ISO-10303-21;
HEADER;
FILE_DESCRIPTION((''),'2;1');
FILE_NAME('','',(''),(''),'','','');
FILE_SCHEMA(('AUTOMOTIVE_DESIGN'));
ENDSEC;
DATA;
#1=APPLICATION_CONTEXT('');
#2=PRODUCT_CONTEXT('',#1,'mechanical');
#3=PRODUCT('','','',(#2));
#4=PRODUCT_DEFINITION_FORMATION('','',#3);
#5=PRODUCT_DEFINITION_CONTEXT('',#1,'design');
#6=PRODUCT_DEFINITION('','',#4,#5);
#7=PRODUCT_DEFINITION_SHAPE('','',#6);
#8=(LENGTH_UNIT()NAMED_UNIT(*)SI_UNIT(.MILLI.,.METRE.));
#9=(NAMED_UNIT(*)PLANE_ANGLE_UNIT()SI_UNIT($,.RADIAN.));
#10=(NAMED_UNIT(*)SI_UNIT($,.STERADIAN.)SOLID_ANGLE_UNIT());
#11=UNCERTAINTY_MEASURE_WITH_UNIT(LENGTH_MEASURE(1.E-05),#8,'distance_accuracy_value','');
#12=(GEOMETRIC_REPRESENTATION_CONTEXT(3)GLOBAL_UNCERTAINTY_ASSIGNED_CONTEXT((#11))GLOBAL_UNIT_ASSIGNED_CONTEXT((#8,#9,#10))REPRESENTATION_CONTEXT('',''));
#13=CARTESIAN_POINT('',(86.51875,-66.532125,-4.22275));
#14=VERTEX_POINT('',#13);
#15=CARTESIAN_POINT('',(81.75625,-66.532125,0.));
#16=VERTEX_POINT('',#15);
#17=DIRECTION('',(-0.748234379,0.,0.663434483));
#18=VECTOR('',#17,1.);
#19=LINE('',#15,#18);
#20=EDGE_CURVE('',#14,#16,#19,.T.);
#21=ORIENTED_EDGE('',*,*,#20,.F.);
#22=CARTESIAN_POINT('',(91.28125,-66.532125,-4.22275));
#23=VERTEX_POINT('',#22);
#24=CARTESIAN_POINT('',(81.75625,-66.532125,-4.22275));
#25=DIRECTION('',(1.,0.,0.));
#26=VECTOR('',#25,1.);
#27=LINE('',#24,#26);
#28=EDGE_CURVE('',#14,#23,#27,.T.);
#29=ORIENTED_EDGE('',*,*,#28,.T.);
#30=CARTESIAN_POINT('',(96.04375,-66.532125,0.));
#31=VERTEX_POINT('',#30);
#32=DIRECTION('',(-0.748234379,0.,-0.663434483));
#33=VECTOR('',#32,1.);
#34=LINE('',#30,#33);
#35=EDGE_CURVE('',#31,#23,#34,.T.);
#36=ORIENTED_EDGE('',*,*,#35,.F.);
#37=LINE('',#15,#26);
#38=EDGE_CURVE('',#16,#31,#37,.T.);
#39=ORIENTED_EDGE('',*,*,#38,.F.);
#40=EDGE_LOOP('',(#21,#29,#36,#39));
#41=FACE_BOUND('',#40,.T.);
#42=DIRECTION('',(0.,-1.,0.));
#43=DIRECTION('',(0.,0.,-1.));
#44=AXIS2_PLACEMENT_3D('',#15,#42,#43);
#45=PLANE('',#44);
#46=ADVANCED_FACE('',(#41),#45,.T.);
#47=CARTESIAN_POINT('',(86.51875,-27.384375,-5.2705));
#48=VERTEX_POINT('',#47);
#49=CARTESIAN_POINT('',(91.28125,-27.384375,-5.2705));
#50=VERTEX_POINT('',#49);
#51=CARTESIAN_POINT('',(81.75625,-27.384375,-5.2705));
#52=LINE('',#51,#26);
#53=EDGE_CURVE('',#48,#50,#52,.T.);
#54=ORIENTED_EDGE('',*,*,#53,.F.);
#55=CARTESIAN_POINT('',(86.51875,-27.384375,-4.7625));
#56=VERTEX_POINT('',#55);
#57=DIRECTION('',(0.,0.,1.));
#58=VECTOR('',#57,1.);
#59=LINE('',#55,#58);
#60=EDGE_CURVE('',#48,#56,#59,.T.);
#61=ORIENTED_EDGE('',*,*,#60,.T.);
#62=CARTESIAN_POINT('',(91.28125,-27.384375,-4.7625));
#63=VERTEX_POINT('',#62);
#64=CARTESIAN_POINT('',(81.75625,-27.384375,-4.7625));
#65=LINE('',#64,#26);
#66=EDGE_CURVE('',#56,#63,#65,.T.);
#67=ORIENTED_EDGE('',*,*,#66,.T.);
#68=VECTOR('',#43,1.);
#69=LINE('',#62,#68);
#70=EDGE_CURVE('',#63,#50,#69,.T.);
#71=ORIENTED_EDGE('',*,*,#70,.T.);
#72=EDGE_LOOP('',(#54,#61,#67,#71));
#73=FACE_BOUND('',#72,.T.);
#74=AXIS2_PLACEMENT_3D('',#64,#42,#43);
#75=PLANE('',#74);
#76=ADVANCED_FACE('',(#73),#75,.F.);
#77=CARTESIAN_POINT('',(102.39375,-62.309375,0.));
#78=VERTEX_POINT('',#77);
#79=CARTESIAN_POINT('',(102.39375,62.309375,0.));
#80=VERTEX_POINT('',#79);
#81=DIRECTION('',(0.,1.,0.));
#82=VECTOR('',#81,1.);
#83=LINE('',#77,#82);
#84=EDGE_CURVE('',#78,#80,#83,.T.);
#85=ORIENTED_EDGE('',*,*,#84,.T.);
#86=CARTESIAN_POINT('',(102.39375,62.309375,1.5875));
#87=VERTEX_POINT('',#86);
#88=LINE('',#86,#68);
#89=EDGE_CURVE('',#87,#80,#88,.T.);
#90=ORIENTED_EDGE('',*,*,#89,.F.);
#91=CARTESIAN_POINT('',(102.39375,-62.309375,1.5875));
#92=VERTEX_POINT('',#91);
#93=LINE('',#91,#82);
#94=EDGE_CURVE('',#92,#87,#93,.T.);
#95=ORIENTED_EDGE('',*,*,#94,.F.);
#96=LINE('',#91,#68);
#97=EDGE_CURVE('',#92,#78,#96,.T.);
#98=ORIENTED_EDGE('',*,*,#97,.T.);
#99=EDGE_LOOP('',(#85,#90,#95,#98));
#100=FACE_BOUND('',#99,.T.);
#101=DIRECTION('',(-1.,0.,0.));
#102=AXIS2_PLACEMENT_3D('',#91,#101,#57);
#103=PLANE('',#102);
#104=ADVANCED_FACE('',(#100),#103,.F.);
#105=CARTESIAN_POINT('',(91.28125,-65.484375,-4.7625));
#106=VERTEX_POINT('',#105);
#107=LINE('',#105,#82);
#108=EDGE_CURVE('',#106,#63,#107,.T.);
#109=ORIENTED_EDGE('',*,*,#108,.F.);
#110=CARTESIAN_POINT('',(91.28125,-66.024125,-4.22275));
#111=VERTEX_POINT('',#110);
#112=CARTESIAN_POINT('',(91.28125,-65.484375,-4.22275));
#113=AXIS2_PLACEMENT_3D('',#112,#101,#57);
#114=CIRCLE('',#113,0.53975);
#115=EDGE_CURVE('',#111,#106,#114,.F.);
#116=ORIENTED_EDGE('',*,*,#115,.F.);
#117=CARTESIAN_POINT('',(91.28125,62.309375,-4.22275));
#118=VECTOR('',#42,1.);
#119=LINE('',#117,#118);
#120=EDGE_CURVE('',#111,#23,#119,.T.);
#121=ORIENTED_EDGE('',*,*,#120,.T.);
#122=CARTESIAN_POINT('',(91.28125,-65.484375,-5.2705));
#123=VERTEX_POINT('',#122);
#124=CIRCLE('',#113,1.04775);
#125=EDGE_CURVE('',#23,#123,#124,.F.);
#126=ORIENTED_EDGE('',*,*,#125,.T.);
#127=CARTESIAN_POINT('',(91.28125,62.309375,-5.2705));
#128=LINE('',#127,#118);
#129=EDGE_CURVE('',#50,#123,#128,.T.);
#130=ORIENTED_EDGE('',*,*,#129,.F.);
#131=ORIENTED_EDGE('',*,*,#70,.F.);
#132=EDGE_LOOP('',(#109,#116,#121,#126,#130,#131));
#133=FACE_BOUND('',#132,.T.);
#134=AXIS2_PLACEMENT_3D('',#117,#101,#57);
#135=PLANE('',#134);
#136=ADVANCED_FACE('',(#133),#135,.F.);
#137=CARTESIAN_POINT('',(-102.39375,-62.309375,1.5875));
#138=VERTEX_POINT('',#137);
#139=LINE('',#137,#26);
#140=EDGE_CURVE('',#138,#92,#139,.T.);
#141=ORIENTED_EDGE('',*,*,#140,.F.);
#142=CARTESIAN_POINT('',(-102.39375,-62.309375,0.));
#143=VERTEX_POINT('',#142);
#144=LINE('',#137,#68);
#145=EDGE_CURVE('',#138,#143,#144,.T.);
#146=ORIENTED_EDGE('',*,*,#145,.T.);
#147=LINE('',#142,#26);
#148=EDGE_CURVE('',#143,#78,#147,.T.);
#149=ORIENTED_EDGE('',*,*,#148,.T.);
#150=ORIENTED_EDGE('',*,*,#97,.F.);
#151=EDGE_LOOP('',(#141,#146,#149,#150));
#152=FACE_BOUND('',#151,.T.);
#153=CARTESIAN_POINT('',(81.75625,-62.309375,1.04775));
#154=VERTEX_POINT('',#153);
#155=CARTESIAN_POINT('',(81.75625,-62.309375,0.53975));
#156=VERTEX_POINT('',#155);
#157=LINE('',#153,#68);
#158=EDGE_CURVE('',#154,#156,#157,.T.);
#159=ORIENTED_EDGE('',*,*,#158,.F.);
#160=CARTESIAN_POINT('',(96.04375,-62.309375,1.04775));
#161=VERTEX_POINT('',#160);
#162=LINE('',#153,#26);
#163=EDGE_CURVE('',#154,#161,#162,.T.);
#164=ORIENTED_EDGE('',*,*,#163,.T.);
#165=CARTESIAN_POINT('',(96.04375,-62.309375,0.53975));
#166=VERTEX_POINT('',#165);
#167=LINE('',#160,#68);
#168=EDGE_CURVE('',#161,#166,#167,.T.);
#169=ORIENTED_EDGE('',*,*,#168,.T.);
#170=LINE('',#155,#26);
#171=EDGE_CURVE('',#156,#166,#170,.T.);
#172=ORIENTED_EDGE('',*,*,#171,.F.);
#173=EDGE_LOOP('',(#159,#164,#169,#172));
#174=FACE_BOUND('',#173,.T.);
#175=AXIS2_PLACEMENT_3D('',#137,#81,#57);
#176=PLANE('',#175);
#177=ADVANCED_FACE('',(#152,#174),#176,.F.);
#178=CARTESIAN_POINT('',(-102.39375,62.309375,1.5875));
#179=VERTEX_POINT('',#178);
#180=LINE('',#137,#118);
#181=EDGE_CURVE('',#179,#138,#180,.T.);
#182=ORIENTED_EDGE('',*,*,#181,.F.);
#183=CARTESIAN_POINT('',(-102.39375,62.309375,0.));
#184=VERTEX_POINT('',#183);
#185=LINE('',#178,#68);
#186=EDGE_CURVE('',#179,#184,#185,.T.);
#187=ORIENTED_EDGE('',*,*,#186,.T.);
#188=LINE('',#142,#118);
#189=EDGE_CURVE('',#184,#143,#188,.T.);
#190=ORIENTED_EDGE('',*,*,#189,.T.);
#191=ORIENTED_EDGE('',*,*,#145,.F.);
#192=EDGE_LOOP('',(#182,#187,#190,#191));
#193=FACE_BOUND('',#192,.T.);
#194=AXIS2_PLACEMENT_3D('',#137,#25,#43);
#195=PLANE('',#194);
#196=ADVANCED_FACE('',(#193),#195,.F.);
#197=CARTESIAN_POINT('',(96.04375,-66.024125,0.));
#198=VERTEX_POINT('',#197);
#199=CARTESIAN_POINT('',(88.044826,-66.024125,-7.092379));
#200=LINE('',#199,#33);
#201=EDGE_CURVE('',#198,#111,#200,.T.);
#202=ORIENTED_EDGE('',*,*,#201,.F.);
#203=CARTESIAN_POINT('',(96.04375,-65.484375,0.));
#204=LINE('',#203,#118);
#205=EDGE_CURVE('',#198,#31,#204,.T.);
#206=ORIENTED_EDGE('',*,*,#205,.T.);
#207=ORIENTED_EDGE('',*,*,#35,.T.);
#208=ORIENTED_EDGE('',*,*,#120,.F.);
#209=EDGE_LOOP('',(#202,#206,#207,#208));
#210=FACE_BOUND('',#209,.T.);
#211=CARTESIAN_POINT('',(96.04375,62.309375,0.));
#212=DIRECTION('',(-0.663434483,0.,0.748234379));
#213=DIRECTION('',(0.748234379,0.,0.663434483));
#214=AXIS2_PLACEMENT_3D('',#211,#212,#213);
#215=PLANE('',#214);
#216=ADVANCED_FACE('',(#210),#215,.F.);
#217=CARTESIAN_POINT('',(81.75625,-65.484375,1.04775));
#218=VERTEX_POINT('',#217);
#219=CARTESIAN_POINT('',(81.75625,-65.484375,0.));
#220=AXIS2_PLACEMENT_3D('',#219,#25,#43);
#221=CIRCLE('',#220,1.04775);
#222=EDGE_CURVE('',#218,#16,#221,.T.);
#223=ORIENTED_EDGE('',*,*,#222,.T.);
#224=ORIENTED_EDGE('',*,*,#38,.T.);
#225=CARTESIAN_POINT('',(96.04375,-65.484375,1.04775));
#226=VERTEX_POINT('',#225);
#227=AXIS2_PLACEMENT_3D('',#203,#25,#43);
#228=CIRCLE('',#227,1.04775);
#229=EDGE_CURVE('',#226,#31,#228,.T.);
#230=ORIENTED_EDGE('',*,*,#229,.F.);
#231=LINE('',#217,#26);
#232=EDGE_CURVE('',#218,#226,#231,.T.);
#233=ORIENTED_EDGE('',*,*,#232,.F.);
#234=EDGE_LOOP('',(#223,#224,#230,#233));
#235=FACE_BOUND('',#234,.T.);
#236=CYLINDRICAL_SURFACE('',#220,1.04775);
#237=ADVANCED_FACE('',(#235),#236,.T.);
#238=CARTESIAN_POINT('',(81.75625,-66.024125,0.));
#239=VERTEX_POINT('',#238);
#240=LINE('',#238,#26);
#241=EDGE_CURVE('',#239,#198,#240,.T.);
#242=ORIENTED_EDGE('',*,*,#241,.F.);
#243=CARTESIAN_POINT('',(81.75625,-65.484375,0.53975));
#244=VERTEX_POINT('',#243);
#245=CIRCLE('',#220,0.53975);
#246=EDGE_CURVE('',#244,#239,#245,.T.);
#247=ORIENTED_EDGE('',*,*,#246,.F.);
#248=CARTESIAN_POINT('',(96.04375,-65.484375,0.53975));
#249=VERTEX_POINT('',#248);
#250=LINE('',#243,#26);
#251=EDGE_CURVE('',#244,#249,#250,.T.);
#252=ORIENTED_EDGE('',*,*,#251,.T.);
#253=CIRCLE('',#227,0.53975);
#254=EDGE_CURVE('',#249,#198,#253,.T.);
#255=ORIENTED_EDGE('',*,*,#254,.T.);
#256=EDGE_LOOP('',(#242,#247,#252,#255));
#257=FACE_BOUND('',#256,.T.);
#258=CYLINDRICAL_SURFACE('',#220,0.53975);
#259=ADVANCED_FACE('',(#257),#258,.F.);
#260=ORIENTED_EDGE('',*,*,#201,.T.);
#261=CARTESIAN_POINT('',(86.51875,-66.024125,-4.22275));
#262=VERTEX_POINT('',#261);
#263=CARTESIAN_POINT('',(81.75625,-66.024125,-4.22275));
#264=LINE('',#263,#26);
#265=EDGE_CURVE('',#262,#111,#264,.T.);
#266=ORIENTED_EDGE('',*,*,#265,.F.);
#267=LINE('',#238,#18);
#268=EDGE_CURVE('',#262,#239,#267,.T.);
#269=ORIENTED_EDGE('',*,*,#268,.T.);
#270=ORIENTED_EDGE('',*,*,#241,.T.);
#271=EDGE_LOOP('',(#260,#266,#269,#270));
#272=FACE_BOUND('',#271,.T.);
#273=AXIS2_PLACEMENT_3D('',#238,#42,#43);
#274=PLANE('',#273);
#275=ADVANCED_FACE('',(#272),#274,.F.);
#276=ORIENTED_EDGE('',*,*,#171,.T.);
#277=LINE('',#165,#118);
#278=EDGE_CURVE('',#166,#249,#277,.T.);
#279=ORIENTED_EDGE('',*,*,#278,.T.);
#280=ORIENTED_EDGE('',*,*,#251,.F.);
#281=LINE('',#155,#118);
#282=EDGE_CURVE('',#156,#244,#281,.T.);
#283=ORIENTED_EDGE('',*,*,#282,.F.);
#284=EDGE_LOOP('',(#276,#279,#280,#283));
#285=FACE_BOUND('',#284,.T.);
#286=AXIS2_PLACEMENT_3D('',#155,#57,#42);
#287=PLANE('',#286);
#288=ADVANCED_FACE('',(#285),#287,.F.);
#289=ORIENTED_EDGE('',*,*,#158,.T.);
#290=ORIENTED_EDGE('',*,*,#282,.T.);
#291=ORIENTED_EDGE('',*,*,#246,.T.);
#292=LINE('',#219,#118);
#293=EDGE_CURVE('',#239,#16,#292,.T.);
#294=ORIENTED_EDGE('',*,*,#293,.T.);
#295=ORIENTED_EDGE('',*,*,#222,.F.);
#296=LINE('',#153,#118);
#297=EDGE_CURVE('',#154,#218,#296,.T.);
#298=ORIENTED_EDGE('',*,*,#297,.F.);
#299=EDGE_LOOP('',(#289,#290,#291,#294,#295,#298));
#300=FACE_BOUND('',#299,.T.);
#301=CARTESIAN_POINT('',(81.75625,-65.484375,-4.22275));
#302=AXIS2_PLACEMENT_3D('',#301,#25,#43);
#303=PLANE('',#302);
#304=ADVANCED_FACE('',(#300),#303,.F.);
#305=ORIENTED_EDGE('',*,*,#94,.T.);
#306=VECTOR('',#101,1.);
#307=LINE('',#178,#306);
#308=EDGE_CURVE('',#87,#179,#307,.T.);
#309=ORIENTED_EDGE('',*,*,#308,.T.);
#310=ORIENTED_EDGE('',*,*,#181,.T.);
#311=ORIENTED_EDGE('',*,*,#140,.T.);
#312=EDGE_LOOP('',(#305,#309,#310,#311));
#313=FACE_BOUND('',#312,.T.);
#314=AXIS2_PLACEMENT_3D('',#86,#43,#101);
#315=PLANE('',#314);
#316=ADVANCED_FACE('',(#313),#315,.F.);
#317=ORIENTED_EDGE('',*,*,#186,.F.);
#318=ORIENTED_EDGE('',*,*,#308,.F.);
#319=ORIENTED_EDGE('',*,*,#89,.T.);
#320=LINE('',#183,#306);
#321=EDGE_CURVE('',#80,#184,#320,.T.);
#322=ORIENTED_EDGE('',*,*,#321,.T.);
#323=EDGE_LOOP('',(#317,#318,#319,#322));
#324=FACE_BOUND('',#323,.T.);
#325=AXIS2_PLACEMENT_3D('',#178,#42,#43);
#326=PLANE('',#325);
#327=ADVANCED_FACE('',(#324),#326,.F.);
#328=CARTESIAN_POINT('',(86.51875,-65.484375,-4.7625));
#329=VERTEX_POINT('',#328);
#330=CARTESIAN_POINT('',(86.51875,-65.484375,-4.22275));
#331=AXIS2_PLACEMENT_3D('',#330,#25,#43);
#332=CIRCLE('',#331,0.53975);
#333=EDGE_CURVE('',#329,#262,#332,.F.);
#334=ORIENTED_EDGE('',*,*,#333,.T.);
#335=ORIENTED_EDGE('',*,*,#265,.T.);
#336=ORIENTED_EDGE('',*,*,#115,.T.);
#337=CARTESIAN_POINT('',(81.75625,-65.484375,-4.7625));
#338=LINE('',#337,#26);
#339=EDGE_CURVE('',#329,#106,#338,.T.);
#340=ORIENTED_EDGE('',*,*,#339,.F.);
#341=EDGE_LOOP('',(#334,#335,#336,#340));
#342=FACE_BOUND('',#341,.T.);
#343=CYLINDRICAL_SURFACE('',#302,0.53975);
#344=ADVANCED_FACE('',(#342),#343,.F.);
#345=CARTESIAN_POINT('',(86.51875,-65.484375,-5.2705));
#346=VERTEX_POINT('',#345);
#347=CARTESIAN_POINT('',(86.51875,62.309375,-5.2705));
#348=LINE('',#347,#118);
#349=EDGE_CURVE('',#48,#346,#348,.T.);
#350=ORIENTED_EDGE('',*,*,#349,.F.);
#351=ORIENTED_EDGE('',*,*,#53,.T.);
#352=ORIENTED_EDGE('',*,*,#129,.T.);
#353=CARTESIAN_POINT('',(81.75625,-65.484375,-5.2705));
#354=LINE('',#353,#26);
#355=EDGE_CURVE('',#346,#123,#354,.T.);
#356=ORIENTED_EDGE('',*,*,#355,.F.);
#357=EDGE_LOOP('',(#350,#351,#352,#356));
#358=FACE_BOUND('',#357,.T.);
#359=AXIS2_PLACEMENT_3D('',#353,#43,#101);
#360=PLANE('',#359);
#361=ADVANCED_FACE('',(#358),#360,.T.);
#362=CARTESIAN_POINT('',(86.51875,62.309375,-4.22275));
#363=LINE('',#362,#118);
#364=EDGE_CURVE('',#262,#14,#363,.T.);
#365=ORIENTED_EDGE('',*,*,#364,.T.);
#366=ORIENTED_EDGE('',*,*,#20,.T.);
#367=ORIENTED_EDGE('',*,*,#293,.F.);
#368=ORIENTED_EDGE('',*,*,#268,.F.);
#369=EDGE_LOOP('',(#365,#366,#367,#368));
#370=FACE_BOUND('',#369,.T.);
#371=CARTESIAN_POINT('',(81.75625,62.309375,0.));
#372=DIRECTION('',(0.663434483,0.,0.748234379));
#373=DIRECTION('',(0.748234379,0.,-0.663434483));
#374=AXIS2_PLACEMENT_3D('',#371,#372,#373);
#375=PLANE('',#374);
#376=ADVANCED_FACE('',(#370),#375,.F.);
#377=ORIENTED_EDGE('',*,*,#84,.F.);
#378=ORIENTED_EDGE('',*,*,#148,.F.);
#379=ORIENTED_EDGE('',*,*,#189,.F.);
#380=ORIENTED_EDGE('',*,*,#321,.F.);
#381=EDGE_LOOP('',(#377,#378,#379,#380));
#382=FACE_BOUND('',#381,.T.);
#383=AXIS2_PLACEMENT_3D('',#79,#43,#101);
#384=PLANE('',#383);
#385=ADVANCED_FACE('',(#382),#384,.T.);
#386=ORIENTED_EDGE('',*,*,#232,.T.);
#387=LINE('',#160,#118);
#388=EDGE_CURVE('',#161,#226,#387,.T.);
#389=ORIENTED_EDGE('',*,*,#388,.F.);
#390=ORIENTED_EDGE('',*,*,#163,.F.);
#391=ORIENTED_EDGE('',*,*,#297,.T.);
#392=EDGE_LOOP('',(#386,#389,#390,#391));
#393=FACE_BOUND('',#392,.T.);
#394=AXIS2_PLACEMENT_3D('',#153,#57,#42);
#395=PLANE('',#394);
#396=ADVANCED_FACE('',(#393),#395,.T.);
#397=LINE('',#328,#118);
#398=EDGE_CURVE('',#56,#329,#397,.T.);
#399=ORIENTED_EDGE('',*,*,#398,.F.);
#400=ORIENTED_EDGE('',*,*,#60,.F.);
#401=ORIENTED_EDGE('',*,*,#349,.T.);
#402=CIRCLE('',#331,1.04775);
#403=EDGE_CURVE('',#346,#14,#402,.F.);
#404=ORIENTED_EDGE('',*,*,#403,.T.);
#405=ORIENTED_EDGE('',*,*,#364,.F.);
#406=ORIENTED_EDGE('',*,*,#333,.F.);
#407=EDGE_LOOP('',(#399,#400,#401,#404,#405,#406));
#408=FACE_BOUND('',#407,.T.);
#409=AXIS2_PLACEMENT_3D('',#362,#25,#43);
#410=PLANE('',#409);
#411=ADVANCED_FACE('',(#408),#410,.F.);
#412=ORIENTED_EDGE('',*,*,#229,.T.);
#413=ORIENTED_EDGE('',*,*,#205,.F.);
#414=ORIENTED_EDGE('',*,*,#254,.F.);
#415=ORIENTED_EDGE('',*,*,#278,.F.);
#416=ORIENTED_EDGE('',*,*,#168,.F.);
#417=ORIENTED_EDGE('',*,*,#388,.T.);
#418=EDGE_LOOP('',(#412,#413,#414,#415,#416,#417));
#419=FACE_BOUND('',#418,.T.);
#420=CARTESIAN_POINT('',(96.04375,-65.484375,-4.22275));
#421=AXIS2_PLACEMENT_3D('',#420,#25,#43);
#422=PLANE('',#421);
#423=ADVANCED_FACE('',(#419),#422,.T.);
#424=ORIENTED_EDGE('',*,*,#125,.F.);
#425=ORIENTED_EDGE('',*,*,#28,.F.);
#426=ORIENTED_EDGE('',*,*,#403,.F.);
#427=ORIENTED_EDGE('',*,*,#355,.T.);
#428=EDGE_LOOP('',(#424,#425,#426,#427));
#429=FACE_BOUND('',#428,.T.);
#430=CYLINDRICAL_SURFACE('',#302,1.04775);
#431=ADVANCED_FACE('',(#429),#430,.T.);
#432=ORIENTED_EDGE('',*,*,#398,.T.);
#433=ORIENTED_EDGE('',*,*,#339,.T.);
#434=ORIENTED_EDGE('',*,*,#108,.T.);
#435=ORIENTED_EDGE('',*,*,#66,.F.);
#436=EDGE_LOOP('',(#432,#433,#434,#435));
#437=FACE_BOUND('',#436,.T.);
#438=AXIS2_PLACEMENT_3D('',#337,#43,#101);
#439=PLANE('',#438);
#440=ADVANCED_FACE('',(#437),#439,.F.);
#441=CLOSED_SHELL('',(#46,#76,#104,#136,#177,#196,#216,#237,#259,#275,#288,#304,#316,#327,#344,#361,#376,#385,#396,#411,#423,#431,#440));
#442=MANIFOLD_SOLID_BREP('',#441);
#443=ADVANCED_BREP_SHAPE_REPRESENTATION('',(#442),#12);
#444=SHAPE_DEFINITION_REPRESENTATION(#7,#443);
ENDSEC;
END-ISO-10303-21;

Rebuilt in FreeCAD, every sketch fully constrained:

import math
import FreeCAD as App
import Part
import Sketcher
from FreeCAD import Vector
Q = App.Units.Quantity


def add_polygon(sketch, points):
    """Adds a closed chain of lines whose ends are joined by coincident constraints."""
    first, n = sketch.GeometryCount, len(points)
    for a, b in zip(points, points[1:] + points[:1]):
        sketch.addGeometry(Part.LineSegment(App.Vector(*a, 0), App.Vector(*b, 0)), False)
    for i in range(n):
        sketch.addConstraint(Sketcher.Constraint("Coincident", first + i, 2, first + (i + 1) % n, 1))

doc = App.newDocument("Part")
body = doc.addObject("PartDesign::Body", "Body")

# Sketch on XY plane
sketch1 = body.newObject("Sketcher::SketchObject", "Sketch")
sketch1.AttachmentSupport = (doc.getObject("XY_Plane"), [""])
sketch1.MapMode = "FlatFace"
add_polygon(sketch1, [(-102.39375, 62.309375), (-102.39375, -62.309375), (102.39375, -62.309375), (102.39375, 62.309375)])  # lines 0-3
sketch1.addConstraint([
    Sketcher.Constraint("Vertical", 0),
    Sketcher.Constraint("Horizontal", 1),
    Sketcher.Constraint("Vertical", 2),
    Sketcher.Constraint("Horizontal", 3),
    Sketcher.Constraint("Symmetric", 0, 2, 2, 2, -1, 1),
    Sketcher.Constraint("DistanceX", 1, 1, 1, 2, Q("8.0625 in")),
    Sketcher.Constraint("DistanceY", 0, 2, 0, 1, Q("4.90625 in")),
])
pad1 = body.newObject("PartDesign::Pad", "Pad")
pad1.Profile = sketch1
pad1.Length = Q("0.0625 in")

# Sketch on YZ plane
sketch2 = body.newObject("Sketcher::SketchObject", "Sketch001")
sketch2.AttachmentSupport = (doc.getObject("YZ_Plane"), [""])
sketch2.MapMode = "FlatFace"
sketch2.AttachmentOffset = App.Placement(Vector(0, 0, 3.78125 * 25.4), App.Rotation())
sketch2.addGeometry([
    Part.LineSegment(Vector(-62.309375, 1.04775, 0), Vector(-65.484375, 1.04775, 0)),  # 0
    Part.ArcOfCircle(Part.Circle(Vector(-65.484375, 0, 0), Vector(0, 0, 1), 1.04775), math.radians(90), math.radians(180)),  # 1
    Part.LineSegment(Vector(-66.532125, 0, 0), Vector(-66.532125, -4.22275, 0)),  # 2
    Part.ArcOfCircle(Part.Circle(Vector(-65.484375, -4.22275, 0), Vector(0, 0, 1), 1.04775), math.radians(180), math.radians(270)),  # 3
    Part.LineSegment(Vector(-65.484375, -5.2705, 0), Vector(-27.384375, -5.2705, 0)),  # 4
    Part.LineSegment(Vector(-27.384375, -5.2705, 0), Vector(-27.384375, -4.7625, 0)),  # 5
    Part.LineSegment(Vector(-27.384375, -4.7625, 0), Vector(-65.484375, -4.7625, 0)),  # 6
    Part.ArcOfCircle(Part.Circle(Vector(-65.484375, -4.22275, 0), Vector(0, 0, 1), 0.53975), math.radians(180), math.radians(270)),  # 7
    Part.LineSegment(Vector(-66.024125, -4.22275, 0), Vector(-66.024125, 0, 0)),  # 8
    Part.ArcOfCircle(Part.Circle(Vector(-65.484375, 0, 0), Vector(0, 0, 1), 0.53975), math.radians(90), math.radians(180)),  # 9
    Part.LineSegment(Vector(-65.484375, 0.53975, 0), Vector(-62.309375, 0.53975, 0)),  # 10
    Part.LineSegment(Vector(-62.309375, 0.53975, 0), Vector(-62.309375, 1.04775, 0)),  # 11
], False)
sketch2.addConstraint([
    Sketcher.Constraint("Tangent", 0, 2, 1, 1),
    Sketcher.Constraint("Tangent", 1, 2, 2, 1),
    Sketcher.Constraint("Tangent", 2, 2, 3, 1),
    Sketcher.Constraint("Tangent", 3, 2, 4, 1),
    Sketcher.Constraint("Coincident", 4, 2, 5, 1),
    Sketcher.Constraint("Coincident", 5, 2, 6, 1),
    Sketcher.Constraint("Tangent", 6, 2, 7, 2),
    Sketcher.Constraint("Tangent", 7, 1, 8, 1),
    Sketcher.Constraint("Tangent", 8, 2, 9, 2),
    Sketcher.Constraint("Tangent", 9, 1, 10, 1),
    Sketcher.Constraint("Coincident", 10, 2, 11, 1),
    Sketcher.Constraint("Coincident", 11, 2, 0, 1),
    Sketcher.Constraint("Horizontal", 0),
    Sketcher.Constraint("Vertical", 2),
    Sketcher.Constraint("Horizontal", 4),
    Sketcher.Constraint("Vertical", 5),
    Sketcher.Constraint("Horizontal", 6),
    Sketcher.Constraint("Vertical", 8),
    Sketcher.Constraint("Horizontal", 10),
    Sketcher.Constraint("Vertical", 11),
    Sketcher.Constraint("Coincident", 7, 3, 3, 3),
    Sketcher.Constraint("Coincident", 9, 3, 1, 3),
    Sketcher.Constraint("Equal", 1, 3),
    Sketcher.Constraint("PointOnObject", 1, 3, -1),
    Sketcher.Constraint("DistanceX", 4, 1, 4, 2, Q("1.5 in")),
    Sketcher.Constraint("DistanceY", 5, 1, 5, 2, Q("0.02 in")),
    Sketcher.Constraint("DistanceX", 0, 2, 0, 1, Q("0.125 in")),
    Sketcher.Constraint("DistanceX", 1, 3, -1, 1, Q("2.578125 in")),
    Sketcher.Constraint("DistanceY", 5, 2, -1, 1, Q("0.1875 in")),
    Sketcher.Constraint("Radius", 1, Q("1.04775 mm")),
])
pad2 = body.newObject("PartDesign::Pad", "Pad001")
pad2.Profile = sketch2
pad2.Length = Q("0.5625 in")
pad2.Reversed = True

# Sketch on XZ plane
sketch3 = body.newObject("Sketcher::SketchObject", "Sketch002")
sketch3.AttachmentSupport = (doc.getObject("XZ_Plane"), [""])
sketch3.MapMode = "FlatFace"
sketch3.AttachmentOffset = App.Placement(Vector(0, 0, 66.532125), App.Rotation())
add_polygon(sketch3, [(86.51875, -4.22275), (81.75625, 0), (81.75625, -5.2705), (86.51875, -5.2705)])  # lines 0-3
add_polygon(sketch3, [(91.28125, -4.22275), (91.28125, -5.2705), (96.04375, -5.2705), (96.04375, 0)])  # lines 4-7
sketch3.addConstraint([
    Sketcher.Constraint("Vertical", 1),
    Sketcher.Constraint("Horizontal", 2),
    Sketcher.Constraint("Vertical", 3),
    Sketcher.Constraint("Vertical", 4),
    Sketcher.Constraint("Horizontal", 5),
    Sketcher.Constraint("Vertical", 6),
    Sketcher.Constraint("PointOnObject", 0, 2, -1),
    Sketcher.Constraint("PointOnObject", 6, 2, -1),
    Sketcher.Constraint("Horizontal", 2, 2, 4, 2),
    Sketcher.Constraint("Horizontal", 3, 2, 7, 2),
    Sketcher.Constraint("Equal", 2, 5),
    Sketcher.Constraint("DistanceX", 2, 1, 2, 2, Q("0.1875 in")),
    Sketcher.Constraint("DistanceY", 1, 2, 1, 1, Q("0.2075 in")),
    Sketcher.Constraint("DistanceX", -1, 1, 0, 2, Q("3.21875 in")),
    Sketcher.Constraint("DistanceX", -1, 1, 4, 2, Q("3.59375 in")),
    Sketcher.Constraint("DistanceY", 3, 1, 3, 2, Q("1.04775 mm")),
])
pocket1 = body.newObject("PartDesign::Pocket", "Pocket")
pocket1.Profile = sketch3
pocket1.Type = "ThroughAll"

doc.recompute()
